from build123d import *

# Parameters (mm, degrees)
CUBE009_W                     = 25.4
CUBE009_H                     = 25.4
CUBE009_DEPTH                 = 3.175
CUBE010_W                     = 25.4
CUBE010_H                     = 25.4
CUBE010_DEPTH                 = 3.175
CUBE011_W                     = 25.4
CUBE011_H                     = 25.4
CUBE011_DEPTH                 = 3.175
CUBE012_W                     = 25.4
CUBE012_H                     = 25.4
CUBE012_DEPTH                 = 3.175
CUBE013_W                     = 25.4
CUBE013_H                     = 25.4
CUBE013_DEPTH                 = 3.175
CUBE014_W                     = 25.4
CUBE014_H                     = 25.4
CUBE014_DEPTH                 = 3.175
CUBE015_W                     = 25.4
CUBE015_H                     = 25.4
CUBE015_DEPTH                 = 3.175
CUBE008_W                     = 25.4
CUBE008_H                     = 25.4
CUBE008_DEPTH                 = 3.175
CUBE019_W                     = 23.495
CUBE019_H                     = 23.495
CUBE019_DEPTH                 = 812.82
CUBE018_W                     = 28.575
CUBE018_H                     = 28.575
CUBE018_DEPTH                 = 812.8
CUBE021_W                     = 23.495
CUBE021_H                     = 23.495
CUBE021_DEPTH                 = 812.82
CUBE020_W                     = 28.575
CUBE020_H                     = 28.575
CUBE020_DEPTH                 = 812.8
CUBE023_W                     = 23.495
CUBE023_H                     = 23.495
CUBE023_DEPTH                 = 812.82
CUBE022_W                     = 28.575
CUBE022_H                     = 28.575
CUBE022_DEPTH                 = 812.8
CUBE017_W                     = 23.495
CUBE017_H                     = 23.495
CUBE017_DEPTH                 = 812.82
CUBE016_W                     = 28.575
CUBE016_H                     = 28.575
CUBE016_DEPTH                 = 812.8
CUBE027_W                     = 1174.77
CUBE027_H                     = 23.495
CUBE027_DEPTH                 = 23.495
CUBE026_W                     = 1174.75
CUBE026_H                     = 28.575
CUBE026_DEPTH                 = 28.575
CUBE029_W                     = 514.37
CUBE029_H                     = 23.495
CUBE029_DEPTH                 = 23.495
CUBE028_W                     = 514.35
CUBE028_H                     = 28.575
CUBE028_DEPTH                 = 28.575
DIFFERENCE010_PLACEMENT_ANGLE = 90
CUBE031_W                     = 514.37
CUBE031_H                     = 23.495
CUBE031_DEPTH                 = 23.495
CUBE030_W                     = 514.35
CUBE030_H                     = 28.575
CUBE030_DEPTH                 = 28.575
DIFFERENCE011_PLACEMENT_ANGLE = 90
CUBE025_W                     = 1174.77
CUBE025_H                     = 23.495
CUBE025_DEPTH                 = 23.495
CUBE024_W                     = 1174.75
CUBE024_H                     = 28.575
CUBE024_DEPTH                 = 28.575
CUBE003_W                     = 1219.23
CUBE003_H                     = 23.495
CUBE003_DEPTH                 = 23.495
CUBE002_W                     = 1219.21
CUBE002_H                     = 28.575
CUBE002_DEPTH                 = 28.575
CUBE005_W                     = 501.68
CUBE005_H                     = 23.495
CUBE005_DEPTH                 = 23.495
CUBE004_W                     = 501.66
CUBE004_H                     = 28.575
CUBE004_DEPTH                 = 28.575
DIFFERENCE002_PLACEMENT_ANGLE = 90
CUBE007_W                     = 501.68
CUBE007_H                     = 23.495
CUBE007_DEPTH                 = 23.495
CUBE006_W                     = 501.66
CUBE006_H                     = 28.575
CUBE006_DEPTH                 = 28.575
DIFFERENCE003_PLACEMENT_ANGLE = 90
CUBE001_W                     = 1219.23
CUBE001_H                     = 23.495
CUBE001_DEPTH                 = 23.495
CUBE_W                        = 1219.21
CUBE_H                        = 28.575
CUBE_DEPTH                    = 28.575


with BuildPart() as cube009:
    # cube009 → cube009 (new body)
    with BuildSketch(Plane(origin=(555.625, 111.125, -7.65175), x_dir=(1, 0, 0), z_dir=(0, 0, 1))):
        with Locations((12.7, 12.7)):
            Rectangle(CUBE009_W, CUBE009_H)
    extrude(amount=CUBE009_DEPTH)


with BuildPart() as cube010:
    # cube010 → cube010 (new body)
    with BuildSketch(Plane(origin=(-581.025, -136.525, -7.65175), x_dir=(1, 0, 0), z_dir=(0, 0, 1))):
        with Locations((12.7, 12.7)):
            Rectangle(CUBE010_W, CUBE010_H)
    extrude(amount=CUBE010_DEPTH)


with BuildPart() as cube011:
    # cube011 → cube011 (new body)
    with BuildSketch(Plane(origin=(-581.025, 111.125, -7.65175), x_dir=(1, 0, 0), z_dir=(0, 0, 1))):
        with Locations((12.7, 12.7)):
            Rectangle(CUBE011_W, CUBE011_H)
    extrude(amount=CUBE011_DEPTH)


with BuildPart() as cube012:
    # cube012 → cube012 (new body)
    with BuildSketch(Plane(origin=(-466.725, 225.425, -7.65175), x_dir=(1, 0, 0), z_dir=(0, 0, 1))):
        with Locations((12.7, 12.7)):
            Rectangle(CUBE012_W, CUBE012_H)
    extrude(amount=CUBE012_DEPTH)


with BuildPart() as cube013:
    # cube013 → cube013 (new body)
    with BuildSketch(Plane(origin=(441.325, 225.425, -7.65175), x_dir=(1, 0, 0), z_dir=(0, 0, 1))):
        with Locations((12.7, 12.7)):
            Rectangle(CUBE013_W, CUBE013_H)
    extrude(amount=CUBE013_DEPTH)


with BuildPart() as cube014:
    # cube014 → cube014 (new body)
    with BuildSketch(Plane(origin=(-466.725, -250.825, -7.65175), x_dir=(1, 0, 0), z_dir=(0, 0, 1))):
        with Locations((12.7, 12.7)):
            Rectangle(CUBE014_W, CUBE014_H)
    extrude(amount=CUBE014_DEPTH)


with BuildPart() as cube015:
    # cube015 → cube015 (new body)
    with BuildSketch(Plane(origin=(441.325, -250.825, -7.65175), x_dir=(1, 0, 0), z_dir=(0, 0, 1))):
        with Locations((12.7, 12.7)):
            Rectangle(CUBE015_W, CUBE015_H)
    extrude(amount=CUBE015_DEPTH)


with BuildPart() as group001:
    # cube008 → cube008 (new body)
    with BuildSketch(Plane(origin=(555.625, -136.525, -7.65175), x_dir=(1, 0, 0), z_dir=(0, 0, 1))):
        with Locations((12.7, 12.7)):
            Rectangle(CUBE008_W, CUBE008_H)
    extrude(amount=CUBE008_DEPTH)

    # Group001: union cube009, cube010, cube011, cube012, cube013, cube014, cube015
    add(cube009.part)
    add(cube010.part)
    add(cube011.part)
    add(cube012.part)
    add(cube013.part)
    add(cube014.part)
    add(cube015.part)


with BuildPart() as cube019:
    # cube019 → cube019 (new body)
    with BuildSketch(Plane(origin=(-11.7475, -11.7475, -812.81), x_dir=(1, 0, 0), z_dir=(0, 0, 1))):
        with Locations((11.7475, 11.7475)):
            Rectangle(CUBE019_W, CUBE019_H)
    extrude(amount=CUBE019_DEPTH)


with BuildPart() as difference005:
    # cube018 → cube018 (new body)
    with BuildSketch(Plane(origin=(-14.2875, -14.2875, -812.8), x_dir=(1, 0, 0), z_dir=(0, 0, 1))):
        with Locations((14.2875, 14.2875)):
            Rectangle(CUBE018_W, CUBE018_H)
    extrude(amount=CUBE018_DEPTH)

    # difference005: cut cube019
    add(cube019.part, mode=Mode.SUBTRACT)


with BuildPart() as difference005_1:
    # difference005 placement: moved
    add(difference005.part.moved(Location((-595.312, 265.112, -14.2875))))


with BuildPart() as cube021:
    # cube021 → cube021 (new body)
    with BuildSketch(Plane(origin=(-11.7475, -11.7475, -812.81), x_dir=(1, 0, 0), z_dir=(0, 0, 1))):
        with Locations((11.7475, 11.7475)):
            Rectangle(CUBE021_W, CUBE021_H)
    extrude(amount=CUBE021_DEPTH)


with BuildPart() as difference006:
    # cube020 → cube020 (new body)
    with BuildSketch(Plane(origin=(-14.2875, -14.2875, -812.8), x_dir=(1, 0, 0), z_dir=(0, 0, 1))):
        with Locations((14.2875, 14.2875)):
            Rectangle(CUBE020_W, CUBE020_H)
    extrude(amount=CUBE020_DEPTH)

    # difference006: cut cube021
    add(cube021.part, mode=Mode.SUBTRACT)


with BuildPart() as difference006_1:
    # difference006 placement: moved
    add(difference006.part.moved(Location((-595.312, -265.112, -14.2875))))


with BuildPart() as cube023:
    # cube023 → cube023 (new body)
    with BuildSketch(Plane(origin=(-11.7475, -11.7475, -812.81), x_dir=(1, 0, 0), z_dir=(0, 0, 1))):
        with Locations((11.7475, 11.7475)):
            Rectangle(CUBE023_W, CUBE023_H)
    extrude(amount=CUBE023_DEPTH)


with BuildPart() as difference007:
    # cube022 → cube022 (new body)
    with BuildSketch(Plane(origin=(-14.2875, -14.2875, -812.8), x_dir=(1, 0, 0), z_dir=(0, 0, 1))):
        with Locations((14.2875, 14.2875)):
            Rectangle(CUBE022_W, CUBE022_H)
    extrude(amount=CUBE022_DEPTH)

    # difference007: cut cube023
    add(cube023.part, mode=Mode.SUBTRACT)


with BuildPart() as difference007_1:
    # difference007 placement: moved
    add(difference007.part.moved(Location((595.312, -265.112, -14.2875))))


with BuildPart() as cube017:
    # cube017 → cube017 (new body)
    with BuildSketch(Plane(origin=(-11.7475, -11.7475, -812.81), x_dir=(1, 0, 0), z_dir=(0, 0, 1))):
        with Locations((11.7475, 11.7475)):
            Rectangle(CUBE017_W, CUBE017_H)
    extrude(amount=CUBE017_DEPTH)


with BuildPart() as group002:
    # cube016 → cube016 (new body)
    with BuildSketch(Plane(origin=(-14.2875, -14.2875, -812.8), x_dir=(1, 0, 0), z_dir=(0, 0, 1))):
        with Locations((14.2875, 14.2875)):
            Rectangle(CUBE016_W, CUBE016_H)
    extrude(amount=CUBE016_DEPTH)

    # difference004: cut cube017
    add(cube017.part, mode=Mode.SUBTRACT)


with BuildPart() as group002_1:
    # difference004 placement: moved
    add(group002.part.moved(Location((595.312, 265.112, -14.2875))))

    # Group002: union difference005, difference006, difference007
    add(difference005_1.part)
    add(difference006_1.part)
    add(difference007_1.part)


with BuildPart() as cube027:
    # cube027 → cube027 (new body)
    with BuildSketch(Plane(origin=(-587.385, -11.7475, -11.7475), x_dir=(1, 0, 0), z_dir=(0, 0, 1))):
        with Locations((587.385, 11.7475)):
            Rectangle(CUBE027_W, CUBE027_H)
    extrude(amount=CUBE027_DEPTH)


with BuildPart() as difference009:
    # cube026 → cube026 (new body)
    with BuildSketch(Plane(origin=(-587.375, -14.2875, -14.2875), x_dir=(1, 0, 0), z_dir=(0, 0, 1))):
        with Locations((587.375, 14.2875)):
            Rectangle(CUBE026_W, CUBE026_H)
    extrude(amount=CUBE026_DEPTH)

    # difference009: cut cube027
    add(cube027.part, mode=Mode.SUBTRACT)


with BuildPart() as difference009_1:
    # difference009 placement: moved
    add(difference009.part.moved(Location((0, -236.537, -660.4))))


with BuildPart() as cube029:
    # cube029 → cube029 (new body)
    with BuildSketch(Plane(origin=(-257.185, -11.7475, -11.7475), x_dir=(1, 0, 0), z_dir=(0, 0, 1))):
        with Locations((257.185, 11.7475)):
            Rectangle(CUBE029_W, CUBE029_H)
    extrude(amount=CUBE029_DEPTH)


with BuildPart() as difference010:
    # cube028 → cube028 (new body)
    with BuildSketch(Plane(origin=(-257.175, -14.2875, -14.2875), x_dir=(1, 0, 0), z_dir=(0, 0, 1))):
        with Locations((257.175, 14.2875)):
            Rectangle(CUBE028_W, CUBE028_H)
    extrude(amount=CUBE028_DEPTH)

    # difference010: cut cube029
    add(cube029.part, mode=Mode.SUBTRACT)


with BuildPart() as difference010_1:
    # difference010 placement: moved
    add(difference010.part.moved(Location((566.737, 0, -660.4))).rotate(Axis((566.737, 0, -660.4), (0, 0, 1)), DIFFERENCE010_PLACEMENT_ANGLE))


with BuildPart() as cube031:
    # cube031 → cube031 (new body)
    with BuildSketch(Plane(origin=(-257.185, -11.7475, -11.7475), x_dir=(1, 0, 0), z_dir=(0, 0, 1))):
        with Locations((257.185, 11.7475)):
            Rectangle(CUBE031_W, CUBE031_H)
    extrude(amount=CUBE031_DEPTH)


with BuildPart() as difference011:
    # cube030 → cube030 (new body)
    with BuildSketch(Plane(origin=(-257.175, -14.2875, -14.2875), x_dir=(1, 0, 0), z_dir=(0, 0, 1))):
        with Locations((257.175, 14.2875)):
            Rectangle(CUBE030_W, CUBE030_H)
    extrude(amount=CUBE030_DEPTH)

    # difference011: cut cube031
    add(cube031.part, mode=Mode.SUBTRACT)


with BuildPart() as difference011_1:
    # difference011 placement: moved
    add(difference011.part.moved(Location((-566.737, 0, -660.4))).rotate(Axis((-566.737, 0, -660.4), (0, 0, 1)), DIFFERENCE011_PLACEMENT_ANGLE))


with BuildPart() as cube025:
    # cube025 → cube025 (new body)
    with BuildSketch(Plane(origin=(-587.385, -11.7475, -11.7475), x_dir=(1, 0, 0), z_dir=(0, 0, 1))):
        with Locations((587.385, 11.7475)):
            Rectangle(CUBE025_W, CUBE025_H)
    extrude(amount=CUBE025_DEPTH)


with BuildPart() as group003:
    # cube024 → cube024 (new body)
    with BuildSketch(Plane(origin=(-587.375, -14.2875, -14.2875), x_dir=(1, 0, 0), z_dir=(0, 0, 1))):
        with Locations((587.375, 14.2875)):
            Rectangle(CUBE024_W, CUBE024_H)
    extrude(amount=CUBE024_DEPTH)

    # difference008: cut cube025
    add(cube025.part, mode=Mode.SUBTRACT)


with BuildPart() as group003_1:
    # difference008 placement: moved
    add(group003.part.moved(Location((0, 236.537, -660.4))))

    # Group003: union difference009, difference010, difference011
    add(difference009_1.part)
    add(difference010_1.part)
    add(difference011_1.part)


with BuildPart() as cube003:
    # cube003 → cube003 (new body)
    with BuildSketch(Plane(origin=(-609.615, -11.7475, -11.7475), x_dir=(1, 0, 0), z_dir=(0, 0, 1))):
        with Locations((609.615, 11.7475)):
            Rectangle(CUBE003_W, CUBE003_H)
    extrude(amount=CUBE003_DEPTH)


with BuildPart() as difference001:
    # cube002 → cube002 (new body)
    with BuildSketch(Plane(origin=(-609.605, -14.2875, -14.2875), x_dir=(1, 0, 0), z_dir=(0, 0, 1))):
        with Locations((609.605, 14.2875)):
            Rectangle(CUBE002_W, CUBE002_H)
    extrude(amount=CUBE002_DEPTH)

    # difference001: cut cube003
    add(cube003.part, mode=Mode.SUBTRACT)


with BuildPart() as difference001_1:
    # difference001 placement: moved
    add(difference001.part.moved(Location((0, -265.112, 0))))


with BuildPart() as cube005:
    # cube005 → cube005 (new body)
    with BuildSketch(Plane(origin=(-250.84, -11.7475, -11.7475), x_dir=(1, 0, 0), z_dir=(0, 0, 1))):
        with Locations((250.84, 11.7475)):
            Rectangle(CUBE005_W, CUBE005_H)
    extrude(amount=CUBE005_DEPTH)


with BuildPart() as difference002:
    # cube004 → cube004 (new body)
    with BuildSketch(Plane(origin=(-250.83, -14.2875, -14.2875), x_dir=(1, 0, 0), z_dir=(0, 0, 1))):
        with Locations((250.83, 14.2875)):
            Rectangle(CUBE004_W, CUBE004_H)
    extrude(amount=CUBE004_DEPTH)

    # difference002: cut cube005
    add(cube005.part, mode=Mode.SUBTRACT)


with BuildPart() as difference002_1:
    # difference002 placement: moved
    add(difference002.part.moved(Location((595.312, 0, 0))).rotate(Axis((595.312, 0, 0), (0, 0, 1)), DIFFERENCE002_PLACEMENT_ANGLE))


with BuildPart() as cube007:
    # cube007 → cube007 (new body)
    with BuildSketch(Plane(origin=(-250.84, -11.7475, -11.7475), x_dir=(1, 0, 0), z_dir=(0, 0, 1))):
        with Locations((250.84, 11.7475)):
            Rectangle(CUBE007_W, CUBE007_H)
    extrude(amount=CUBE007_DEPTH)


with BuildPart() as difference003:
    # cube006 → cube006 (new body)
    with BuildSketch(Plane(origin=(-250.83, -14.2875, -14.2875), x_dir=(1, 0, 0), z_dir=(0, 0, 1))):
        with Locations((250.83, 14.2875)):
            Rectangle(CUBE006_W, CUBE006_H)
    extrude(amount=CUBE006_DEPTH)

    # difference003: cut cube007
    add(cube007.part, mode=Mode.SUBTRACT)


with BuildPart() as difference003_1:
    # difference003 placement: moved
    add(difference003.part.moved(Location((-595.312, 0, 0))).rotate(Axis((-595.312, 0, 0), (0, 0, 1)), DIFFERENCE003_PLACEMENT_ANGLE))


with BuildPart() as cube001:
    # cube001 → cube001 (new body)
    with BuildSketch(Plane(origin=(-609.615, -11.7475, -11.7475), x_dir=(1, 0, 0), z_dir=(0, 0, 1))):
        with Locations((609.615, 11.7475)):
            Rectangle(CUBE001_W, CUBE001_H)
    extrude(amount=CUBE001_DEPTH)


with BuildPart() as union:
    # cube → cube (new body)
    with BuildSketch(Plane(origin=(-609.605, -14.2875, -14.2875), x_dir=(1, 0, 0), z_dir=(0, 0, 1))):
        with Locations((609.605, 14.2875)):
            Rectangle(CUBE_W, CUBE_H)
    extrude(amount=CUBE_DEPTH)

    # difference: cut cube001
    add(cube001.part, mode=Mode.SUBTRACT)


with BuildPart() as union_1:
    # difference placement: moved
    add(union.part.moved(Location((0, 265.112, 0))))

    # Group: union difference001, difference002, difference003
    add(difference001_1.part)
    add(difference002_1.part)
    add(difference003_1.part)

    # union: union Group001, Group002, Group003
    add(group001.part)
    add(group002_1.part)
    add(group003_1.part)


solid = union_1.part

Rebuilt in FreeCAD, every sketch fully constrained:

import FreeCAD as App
import Part
import Sketcher
Q = App.Units.Quantity


def add_polygon(sketch, points):
    """Adds a closed chain of lines whose ends are joined by coincident constraints."""
    first, n = sketch.GeometryCount, len(points)
    for a, b in zip(points, points[1:] + points[:1]):
        sketch.addGeometry(Part.LineSegment(App.Vector(*a, 0), App.Vector(*b, 0)), False)
    for i in range(n):
        sketch.addConstraint(Sketcher.Constraint("Coincident", first + i, 2, first + (i + 1) % n, 1))

doc = App.newDocument("Part")
body = doc.addObject("PartDesign::Body", "Body")

sketch1 = body.newObject("Sketcher::SketchObject", "Sketch")
sketch1.AttachmentSupport = (doc.getObject("XY_Plane"), [""])
sketch1.MapMode = "FlatFace"
sketch1.AttachmentOffset = App.Placement(App.Vector(0, 0, -7.65175), App.Rotation())
add_polygon(sketch1, [(556, 137), (556, 111), (581, 111), (581, 137)])
sketch1.addConstraint([
    Sketcher.Constraint("Vertical", 0),
    Sketcher.Constraint("Horizontal", 1),
    Sketcher.Constraint("Vertical", 2),
    Sketcher.Constraint("Horizontal", 3),
    Sketcher.Constraint("Equal", 3, 0),
    Sketcher.Constraint("DistanceX", 1, 1, 1, 2, Q("1 in")),
    Sketcher.Constraint("DistanceX", -1, 1, 0, 2, Q("21.875 in")),
    Sketcher.Constraint("DistanceY", -1, 1, 0, 2, Q("4.375 in")),
])
pad1 = body.newObject("PartDesign::Pad", "Pad")
pad1.Profile = sketch1
pad1.Length = Q("0.125 in")
body2 = doc.addObject("PartDesign::Body", "Body001")

sketch2 = body2.newObject("Sketcher::SketchObject", "Sketch001")
sketch2.AttachmentSupport = (doc.getObject("XY_Plane001"), [""])
sketch2.MapMode = "FlatFace"
sketch2.AttachmentOffset = App.Placement(App.Vector(0, 0, -7.65175), App.Rotation())
add_polygon(sketch2, [(-581, -111), (-581, -137), (-556, -137), (-556, -111)])
sketch2.addConstraint([
    Sketcher.Constraint("Vertical", 0),
    Sketcher.Constraint("Horizontal", 1),
    Sketcher.Constraint("Vertical", 2),
    Sketcher.Constraint("Horizontal", 3),
    Sketcher.Constraint("Equal", 3, 0),
    Sketcher.Constraint("DistanceX", 1, 1, 1, 2, Q("1 in")),
    Sketcher.Constraint("DistanceX", 0, 2, -1, 1, Q("22.875 in")),
    Sketcher.Constraint("DistanceY", 0, 2, -1, 1, Q("5.375 in")),
])
pad2 = body2.newObject("PartDesign::Pad", "Pad001")
pad2.Profile = sketch2
pad2.Length = Q("0.125 in")
body3 = doc.addObject("PartDesign::Body", "Body002")

sketch3 = body3.newObject("Sketcher::SketchObject", "Sketch002")
sketch3.AttachmentSupport = (doc.getObject("XY_Plane002"), [""])
sketch3.MapMode = "FlatFace"
sketch3.AttachmentOffset = App.Placement(App.Vector(0, 0, -7.65175), App.Rotation())
add_polygon(sketch3, [(-581, 137), (-581, 111), (-556, 111), (-556, 137)])
sketch3.addConstraint([
    Sketcher.Constraint("Vertical", 0),
    Sketcher.Constraint("Horizontal", 1),
    Sketcher.Constraint("Vertical", 2),
    Sketcher.Constraint("Horizontal", 3),
    Sketcher.Constraint("Equal", 3, 0),
    Sketcher.Constraint("DistanceX", 1, 1, 1, 2, Q("1 in")),
    Sketcher.Constraint("DistanceX", 0, 2, -1, 1, Q("22.875 in")),
    Sketcher.Constraint("DistanceY", -1, 1, 0, 2, Q("4.375 in")),
])
pad3 = body3.newObject("PartDesign::Pad", "Pad002")
pad3.Profile = sketch3
pad3.Length = Q("0.125 in")
body4 = doc.addObject("PartDesign::Body", "Body003")

sketch4 = body4.newObject("Sketcher::SketchObject", "Sketch003")
sketch4.AttachmentSupport = (doc.getObject("XY_Plane003"), [""])
sketch4.MapMode = "FlatFace"
sketch4.AttachmentOffset = App.Placement(App.Vector(0, 0, -7.65175), App.Rotation())
add_polygon(sketch4, [(-467, 251), (-467, 225), (-441, 225), (-441, 251)])
sketch4.addConstraint([
    Sketcher.Constraint("Vertical", 0),
    Sketcher.Constraint("Horizontal", 1),
    Sketcher.Constraint("Vertical", 2),
    Sketcher.Constraint("Horizontal", 3),
    Sketcher.Constraint("Equal", 3, 0),
    Sketcher.Constraint("DistanceX", 1, 1, 1, 2, Q("1 in")),
    Sketcher.Constraint("DistanceX", 0, 2, -1, 1, Q("18.375 in")),
    Sketcher.Constraint("DistanceY", -1, 1, 0, 2, Q("8.875 in")),
])
pad4 = body4.newObject("PartDesign::Pad", "Pad003")
pad4.Profile = sketch4
pad4.Length = Q("0.125 in")
body5 = doc.addObject("PartDesign::Body", "Body004")

sketch5 = body5.newObject("Sketcher::SketchObject", "Sketch004")
sketch5.AttachmentSupport = (doc.getObject("XY_Plane004"), [""])
sketch5.MapMode = "FlatFace"
sketch5.AttachmentOffset = App.Placement(App.Vector(0, 0, -7.65175), App.Rotation())
add_polygon(sketch5, [(441, 251), (441, 225), (467, 225), (467, 251)])
sketch5.addConstraint([
    Sketcher.Constraint("Vertical", 0),
    Sketcher.Constraint("Horizontal", 1),
    Sketcher.Constraint("Vertical", 2),
    Sketcher.Constraint("Horizontal", 3),
    Sketcher.Constraint("Equal", 3, 0),
    Sketcher.Constraint("DistanceX", 1, 1, 1, 2, Q("1 in")),
    Sketcher.Constraint("DistanceX", -1, 1, 0, 2, Q("17.375 in")),
    Sketcher.Constraint("DistanceY", -1, 1, 0, 2, Q("8.875 in")),
])
pad5 = body5.newObject("PartDesign::Pad", "Pad004")
pad5.Profile = sketch5
pad5.Length = Q("0.125 in")
body6 = doc.addObject("PartDesign::Body", "Body005")

sketch6 = body6.newObject("Sketcher::SketchObject", "Sketch005")
sketch6.AttachmentSupport = (doc.getObject("XY_Plane005"), [""])
sketch6.MapMode = "FlatFace"
sketch6.AttachmentOffset = App.Placement(App.Vector(0, 0, -7.65175), App.Rotation())
add_polygon(sketch6, [(-467, -225), (-467, -251), (-441, -251), (-441, -225)])
sketch6.addConstraint([
    Sketcher.Constraint("Vertical", 0),
    Sketcher.Constraint("Horizontal", 1),
    Sketcher.Constraint("Vertical", 2),
    Sketcher.Constraint("Horizontal", 3),
    Sketcher.Constraint("Equal", 3, 0),
    Sketcher.Constraint("DistanceX", 1, 1, 1, 2, Q("1 in")),
    Sketcher.Constraint("DistanceX", 0, 2, -1, 1, Q("18.375 in")),
    Sketcher.Constraint("DistanceY", 0, 2, -1, 1, Q("9.875 in")),
])
pad6 = body6.newObject("PartDesign::Pad", "Pad005")
pad6.Profile = sketch6
pad6.Length = Q("0.125 in")
body7 = doc.addObject("PartDesign::Body", "Body006")

sketch7 = body7.newObject("Sketcher::SketchObject", "Sketch006")
sketch7.AttachmentSupport = (doc.getObject("XY_Plane006"), [""])
sketch7.MapMode = "FlatFace"
sketch7.AttachmentOffset = App.Placement(App.Vector(0, 0, -7.65175), App.Rotation())
add_polygon(sketch7, [(441, -225), (441, -251), (467, -251), (467, -225)])
sketch7.addConstraint([
    Sketcher.Constraint("Vertical", 0),
    Sketcher.Constraint("Horizontal", 1),
    Sketcher.Constraint("Vertical", 2),
    Sketcher.Constraint("Horizontal", 3),
    Sketcher.Constraint("Equal", 3, 0),
    Sketcher.Constraint("DistanceX", 1, 1, 1, 2, Q("1 in")),
    Sketcher.Constraint("DistanceX", -1, 1, 0, 2, Q("17.375 in")),
    Sketcher.Constraint("DistanceY", 0, 2, -1, 1, Q("9.875 in")),
])
pad7 = body7.newObject("PartDesign::Pad", "Pad006")
pad7.Profile = sketch7
pad7.Length = Q("0.125 in")
body8 = doc.addObject("PartDesign::Body", "Body007")
body8.AllowCompound = True

sketch8 = body8.newObject("Sketcher::SketchObject", "Sketch007")
sketch8.AttachmentSupport = (doc.getObject("XY_Plane007"), [""])
sketch8.MapMode = "FlatFace"
sketch8.AttachmentOffset = App.Placement(App.Vector(0, 0, -7.65175), App.Rotation())
add_polygon(sketch8, [(556, -111), (556, -137), (581, -137), (581, -111)])
sketch8.addConstraint([
    Sketcher.Constraint("Vertical", 0),
    Sketcher.Constraint("Horizontal", 1),
    Sketcher.Constraint("Vertical", 2),
    Sketcher.Constraint("Horizontal", 3),
    Sketcher.Constraint("Equal", 3, 0),
    Sketcher.Constraint("DistanceX", 1, 1, 1, 2, Q("1 in")),
    Sketcher.Constraint("DistanceX", -1, 1, 0, 2, Q("21.875 in")),
    Sketcher.Constraint("DistanceY", 0, 2, -1, 1, Q("5.375 in")),
])
pad8 = body8.newObject("PartDesign::Pad", "Pad007")
pad8.Profile = sketch8
pad8.Length = Q("0.125 in")
doc.recompute()

boolean = body8.newObject("PartDesign::Boolean", "Boolean")
boolean.Type = "Fuse"
boolean.addObjects([body])
doc.recompute()

boolean2 = body8.newObject("PartDesign::Boolean", "Boolean001")
boolean2.Type = "Fuse"
boolean2.addObjects([body2])
doc.recompute()

boolean3 = body8.newObject("PartDesign::Boolean", "Boolean002")
boolean3.Type = "Fuse"
boolean3.addObjects([body3])
doc.recompute()

boolean4 = body8.newObject("PartDesign::Boolean", "Boolean003")
boolean4.Type = "Fuse"
boolean4.addObjects([body4])
doc.recompute()

boolean5 = body8.newObject("PartDesign::Boolean", "Boolean004")
boolean5.Type = "Fuse"
boolean5.addObjects([body5])
doc.recompute()

boolean6 = body8.newObject("PartDesign::Boolean", "Boolean005")
boolean6.Type = "Fuse"
boolean6.addObjects([body6])
doc.recompute()

boolean7 = body8.newObject("PartDesign::Boolean", "Boolean006")
boolean7.Type = "Fuse"
boolean7.addObjects([body7])
body9 = doc.addObject("PartDesign::Body", "Body008")

sketch9 = body9.newObject("Sketcher::SketchObject", "Sketch008")
sketch9.AttachmentSupport = (doc.getObject("XY_Plane008"), [""])
sketch9.MapMode = "FlatFace"
sketch9.AttachmentOffset = App.Placement(App.Vector(0, 0, -812.81), App.Rotation())
add_polygon(sketch9, [(-12, 12), (-12, -12), (12, -12), (12, 12)])
sketch9.addConstraint([
    Sketcher.Constraint("Vertical", 0),
    Sketcher.Constraint("Horizontal", 1),
    Sketcher.Constraint("Vertical", 2),
    Sketcher.Constraint("Horizontal", 3),
    Sketcher.Constraint("Symmetric", 0, 2, 2, 2, -1, 1),
    Sketcher.Constraint("Equal", 3, 0),
    Sketcher.Constraint("DistanceX", 1, 1, 1, 2, Q("0.925 in")),
])
pad9 = body9.newObject("PartDesign::Pad", "Pad008")
pad9.Profile = sketch9
pad9.Length = 812.82
body10 = doc.addObject("PartDesign::Body", "Body009")

sketch10 = body10.newObject("Sketcher::SketchObject", "Sketch009")
sketch10.AttachmentSupport = (doc.getObject("XY_Plane009"), [""])
sketch10.MapMode = "FlatFace"
sketch10.AttachmentOffset = App.Placement(App.Vector(0, 0, -32 * 25.4), App.Rotation())
add_polygon(sketch10, [(-14, 14), (-14, -14), (14, -14), (14, 14)])
sketch10.addConstraint([
    Sketcher.Constraint("Vertical", 0),
    Sketcher.Constraint("Horizontal", 1),
    Sketcher.Constraint("Vertical", 2),
    Sketcher.Constraint("Horizontal", 3),
    Sketcher.Constraint("Symmetric", 0, 2, 2, 2, -1, 1),
    Sketcher.Constraint("Equal", 3, 0),
    Sketcher.Constraint("DistanceX", 1, 1, 1, 2, Q("1.125 in")),
])
pad10 = body10.newObject("PartDesign::Pad", "Pad009")
pad10.Profile = sketch10
pad10.Length = Q("32 in")
doc.recompute()

boolean8 = body10.newObject("PartDesign::Boolean", "Boolean007")
boolean8.Type = "Cut"
boolean8.addObjects([body9])
body11 = doc.addObject("PartDesign::Body", "Body010")
doc.recompute()

body10.Placement = App.Placement(App.Vector(-595.312, 265.112, -14.2875), App.Rotation(App.Vector(0, 0, 1), 0))
boolean9 = body11.newObject("PartDesign::Boolean", "Boolean008")
boolean9.Type = "Fuse"
boolean9.addObjects([body10])
body12 = doc.addObject("PartDesign::Body", "Body011")

sketch11 = body12.newObject("Sketcher::SketchObject", "Sketch010")
sketch11.AttachmentSupport = (doc.getObject("XY_Plane011"), [""])
sketch11.MapMode = "FlatFace"
sketch11.AttachmentOffset = App.Placement(App.Vector(0, 0, -812.81), App.Rotation())
add_polygon(sketch11, [(-12, 12), (-12, -12), (12, -12), (12, 12)])
sketch11.addConstraint([
    Sketcher.Constraint("Vertical", 0),
    Sketcher.Constraint("Horizontal", 1),
    Sketcher.Constraint("Vertical", 2),
    Sketcher.Constraint("Horizontal", 3),
    Sketcher.Constraint("Symmetric", 0, 2, 2, 2, -1, 1),
    Sketcher.Constraint("Equal", 3, 0),
    Sketcher.Constraint("DistanceX", 1, 1, 1, 2, Q("0.925 in")),
])
pad11 = body12.newObject("PartDesign::Pad", "Pad010")
pad11.Profile = sketch11
pad11.Length = 812.82
body13 = doc.addObject("PartDesign::Body", "Body012")

sketch12 = body13.newObject("Sketcher::SketchObject", "Sketch011")
sketch12.AttachmentSupport = (doc.getObject("XY_Plane012"), [""])
sketch12.MapMode = "FlatFace"
sketch12.AttachmentOffset = App.Placement(App.Vector(0, 0, -32 * 25.4), App.Rotation())
add_polygon(sketch12, [(-14, 14), (-14, -14), (14, -14), (14, 14)])
sketch12.addConstraint([
    Sketcher.Constraint("Vertical", 0),
    Sketcher.Constraint("Horizontal", 1),
    Sketcher.Constraint("Vertical", 2),
    Sketcher.Constraint("Horizontal", 3),
    Sketcher.Constraint("Symmetric", 0, 2, 2, 2, -1, 1),
    Sketcher.Constraint("Equal", 3, 0),
    Sketcher.Constraint("DistanceX", 1, 1, 1, 2, Q("1.125 in")),
])
pad12 = body13.newObject("PartDesign::Pad", "Pad011")
pad12.Profile = sketch12
pad12.Length = Q("32 in")
doc.recompute()

boolean10 = body13.newObject("PartDesign::Boolean", "Boolean009")
boolean10.Type = "Cut"
boolean10.addObjects([body12])
body14 = doc.addObject("PartDesign::Body", "Body013")
doc.recompute()

body13.Placement = App.Placement(App.Vector(-595.312, -265.112, -14.2875), App.Rotation(App.Vector(0, 0, 1), 0))
boolean11 = body14.newObject("PartDesign::Boolean", "Boolean010")
boolean11.Type = "Fuse"
boolean11.addObjects([body13])
body15 = doc.addObject("PartDesign::Body", "Body014")

sketch13 = body15.newObject("Sketcher::SketchObject", "Sketch012")
sketch13.AttachmentSupport = (doc.getObject("XY_Plane014"), [""])
sketch13.MapMode = "FlatFace"
sketch13.AttachmentOffset = App.Placement(App.Vector(0, 0, -812.81), App.Rotation())
add_polygon(sketch13, [(-12, 12), (-12, -12), (12, -12), (12, 12)])
sketch13.addConstraint([
    Sketcher.Constraint("Vertical", 0),
    Sketcher.Constraint("Horizontal", 1),
    Sketcher.Constraint("Vertical", 2),
    Sketcher.Constraint("Horizontal", 3),
    Sketcher.Constraint("Symmetric", 0, 2, 2, 2, -1, 1),
    Sketcher.Constraint("Equal", 3, 0),
    Sketcher.Constraint("DistanceX", 1, 1, 1, 2, Q("0.925 in")),
])
pad13 = body15.newObject("PartDesign::Pad", "Pad012")
pad13.Profile = sketch13
pad13.Length = 812.82
body16 = doc.addObject("PartDesign::Body", "Body015")

sketch14 = body16.newObject("Sketcher::SketchObject", "Sketch013")
sketch14.AttachmentSupport = (doc.getObject("XY_Plane015"), [""])
sketch14.MapMode = "FlatFace"
sketch14.AttachmentOffset = App.Placement(App.Vector(0, 0, -32 * 25.4), App.Rotation())
add_polygon(sketch14, [(-14, 14), (-14, -14), (14, -14), (14, 14)])
sketch14.addConstraint([
    Sketcher.Constraint("Vertical", 0),
    Sketcher.Constraint("Horizontal", 1),
    Sketcher.Constraint("Vertical", 2),
    Sketcher.Constraint("Horizontal", 3),
    Sketcher.Constraint("Symmetric", 0, 2, 2, 2, -1, 1),
    Sketcher.Constraint("Equal", 3, 0),
    Sketcher.Constraint("DistanceX", 1, 1, 1, 2, Q("1.125 in")),
])
pad14 = body16.newObject("PartDesign::Pad", "Pad013")
pad14.Profile = sketch14
pad14.Length = Q("32 in")
doc.recompute()

boolean12 = body16.newObject("PartDesign::Boolean", "Boolean011")
boolean12.Type = "Cut"
boolean12.addObjects([body15])
body17 = doc.addObject("PartDesign::Body", "Body016")
doc.recompute()

body16.Placement = App.Placement(App.Vector(595.312, -265.112, -14.2875), App.Rotation(App.Vector(0, 0, 1), 0))
boolean13 = body17.newObject("PartDesign::Boolean", "Boolean012")
boolean13.Type = "Fuse"
boolean13.addObjects([body16])
body18 = doc.addObject("PartDesign::Body", "Body017")

sketch15 = body18.newObject("Sketcher::SketchObject", "Sketch014")
sketch15.AttachmentSupport = (doc.getObject("XY_Plane017"), [""])
sketch15.MapMode = "FlatFace"
sketch15.AttachmentOffset = App.Placement(App.Vector(0, 0, -812.81), App.Rotation())
add_polygon(sketch15, [(-12, 12), (-12, -12), (12, -12), (12, 12)])
sketch15.addConstraint([
    Sketcher.Constraint("Vertical", 0),
    Sketcher.Constraint("Horizontal", 1),
    Sketcher.Constraint("Vertical", 2),
    Sketcher.Constraint("Horizontal", 3),
    Sketcher.Constraint("Symmetric", 0, 2, 2, 2, -1, 1),
    Sketcher.Constraint("Equal", 3, 0),
    Sketcher.Constraint("DistanceX", 1, 1, 1, 2, Q("0.925 in")),
])
pad15 = body18.newObject("PartDesign::Pad", "Pad014")
pad15.Profile = sketch15
pad15.Length = 812.82
body19 = doc.addObject("PartDesign::Body", "Body018")

sketch16 = body19.newObject("Sketcher::SketchObject", "Sketch015")
sketch16.AttachmentSupport = (doc.getObject("XY_Plane018"), [""])
sketch16.MapMode = "FlatFace"
sketch16.AttachmentOffset = App.Placement(App.Vector(0, 0, -32 * 25.4), App.Rotation())
add_polygon(sketch16, [(-14, 14), (-14, -14), (14, -14), (14, 14)])
sketch16.addConstraint([
    Sketcher.Constraint("Vertical", 0),
    Sketcher.Constraint("Horizontal", 1),
    Sketcher.Constraint("Vertical", 2),
    Sketcher.Constraint("Horizontal", 3),
    Sketcher.Constraint("Symmetric", 0, 2, 2, 2, -1, 1),
    Sketcher.Constraint("Equal", 3, 0),
    Sketcher.Constraint("DistanceX", 1, 1, 1, 2, Q("1.125 in")),
])
pad16 = body19.newObject("PartDesign::Pad", "Pad015")
pad16.Profile = sketch16
pad16.Length = Q("32 in")
doc.recompute()

boolean14 = body19.newObject("PartDesign::Boolean", "Boolean013")
boolean14.Type = "Cut"
boolean14.addObjects([body18])
body20 = doc.addObject("PartDesign::Body", "Body019")
body20.AllowCompound = True
doc.recompute()

body19.Placement = App.Placement(App.Vector(595.312, 265.112, -14.2875), App.Rotation(App.Vector(0, 0, 1), 0))
boolean15 = body20.newObject("PartDesign::Boolean", "Boolean014")
boolean15.Type = "Fuse"
boolean15.addObjects([body19])
doc.recompute()

boolean16 = body20.newObject("PartDesign::Boolean", "Boolean015")
boolean16.Type = "Fuse"
boolean16.addObjects([body11])
doc.recompute()

boolean17 = body20.newObject("PartDesign::Boolean", "Boolean016")
boolean17.Type = "Fuse"
boolean17.addObjects([body14])
doc.recompute()

boolean18 = body20.newObject("PartDesign::Boolean", "Boolean017")
boolean18.Type = "Fuse"
boolean18.addObjects([body17])
body21 = doc.addObject("PartDesign::Body", "Body020")

sketch17 = body21.newObject("Sketcher::SketchObject", "Sketch016")
sketch17.AttachmentSupport = (doc.getObject("XY_Plane020"), [""])
sketch17.MapMode = "FlatFace"
sketch17.AttachmentOffset = App.Placement(App.Vector(0, 0, -0.4625 * 25.4), App.Rotation())
add_polygon(sketch17, [(-587, 12), (-587, -12), (587, -12), (587, 12)])
sketch17.addConstraint([
    Sketcher.Constraint("Vertical", 0),
    Sketcher.Constraint("Horizontal", 1),
    Sketcher.Constraint("Vertical", 2),
    Sketcher.Constraint("Horizontal", 3),
    Sketcher.Constraint("Symmetric", 0, 2, 2, 2, -1, 1),
    Sketcher.Constraint("DistanceY", 0, 2, 0, 1, Q("0.925 in")),
    Sketcher.Constraint("DistanceX", 1, 1, 1, 2, Q("1174.77 mm")),
])
pad17 = body21.newObject("PartDesign::Pad", "Pad016")
pad17.Profile = sketch17
pad17.Length = Q("0.925 in")
body22 = doc.addObject("PartDesign::Body", "Body021")

sketch18 = body22.newObject("Sketcher::SketchObject", "Sketch017")
sketch18.AttachmentSupport = (doc.getObject("XY_Plane021"), [""])
sketch18.MapMode = "FlatFace"
sketch18.AttachmentOffset = App.Placement(App.Vector(0, 0, -0.5625 * 25.4), App.Rotation())
add_polygon(sketch18, [(-587, 14), (-587, -14), (587, -14), (587, 14)])
sketch18.addConstraint([
    Sketcher.Constraint("Vertical", 0),
    Sketcher.Constraint("Horizontal", 1),
    Sketcher.Constraint("Vertical", 2),
    Sketcher.Constraint("Horizontal", 3),
    Sketcher.Constraint("Symmetric", 0, 2, 2, 2, -1, 1),
    Sketcher.Constraint("DistanceX", 1, 1, 1, 2, Q("46.25 in")),
    Sketcher.Constraint("DistanceY", 0, 2, 0, 1, Q("1.125 in")),
])
pad18 = body22.newObject("PartDesign::Pad", "Pad017")
pad18.Profile = sketch18
pad18.Length = Q("1.125 in")
doc.recompute()

boolean19 = body22.newObject("PartDesign::Boolean", "Boolean018")
boolean19.Type = "Cut"
boolean19.addObjects([body21])
body23 = doc.addObject("PartDesign::Body", "Body022")
doc.recompute()

body22.Placement = App.Placement(App.Vector(0, -236.537, -660.4), App.Rotation(App.Vector(0, 0, 1), 0))
boolean20 = body23.newObject("PartDesign::Boolean", "Boolean019")
boolean20.Type = "Fuse"
boolean20.addObjects([body22])
body24 = doc.addObject("PartDesign::Body", "Body023")

sketch19 = body24.newObject("Sketcher::SketchObject", "Sketch018")
sketch19.AttachmentSupport = (doc.getObject("XY_Plane023"), [""])
sketch19.MapMode = "FlatFace"
sketch19.AttachmentOffset = App.Placement(App.Vector(0, 0, -0.4625 * 25.4), App.Rotation())
add_polygon(sketch19, [(-257, 12), (-257, -12), (257, -12), (257, 12)])
sketch19.addConstraint([
    Sketcher.Constraint("Vertical", 0),
    Sketcher.Constraint("Horizontal", 1),
    Sketcher.Constraint("Vertical", 2),
    Sketcher.Constraint("Horizontal", 3),
    Sketcher.Constraint("Symmetric", 0, 2, 2, 2, -1, 1),
    Sketcher.Constraint("DistanceY", 0, 2, 0, 1, Q("0.925 in")),
    Sketcher.Constraint("DistanceX", 1, 1, 1, 2, Q("514.37 mm")),
])
pad19 = body24.newObject("PartDesign::Pad", "Pad018")
pad19.Profile = sketch19
pad19.Length = Q("0.925 in")
body25 = doc.addObject("PartDesign::Body", "Body024")

sketch20 = body25.newObject("Sketcher::SketchObject", "Sketch019")
sketch20.AttachmentSupport = (doc.getObject("XY_Plane024"), [""])
sketch20.MapMode = "FlatFace"
sketch20.AttachmentOffset = App.Placement(App.Vector(0, 0, -0.5625 * 25.4), App.Rotation())
add_polygon(sketch20, [(-257, 14), (-257, -14), (257, -14), (257, 14)])
sketch20.addConstraint([
    Sketcher.Constraint("Vertical", 0),
    Sketcher.Constraint("Horizontal", 1),
    Sketcher.Constraint("Vertical", 2),
    Sketcher.Constraint("Horizontal", 3),
    Sketcher.Constraint("Symmetric", 0, 2, 2, 2, -1, 1),
    Sketcher.Constraint("DistanceX", 1, 1, 1, 2, Q("20.25 in")),
    Sketcher.Constraint("DistanceY", 0, 2, 0, 1, Q("1.125 in")),
])
pad20 = body25.newObject("PartDesign::Pad", "Pad019")
pad20.Profile = sketch20
pad20.Length = Q("1.125 in")
doc.recompute()

boolean21 = body25.newObject("PartDesign::Boolean", "Boolean020")
boolean21.Type = "Cut"
boolean21.addObjects([body24])
body26 = doc.addObject("PartDesign::Body", "Body025")
doc.recompute()

body25.Placement = App.Placement(App.Vector(566.737, 0, -660.4), App.Rotation(App.Vector(0, 0, 1), 90))
boolean22 = body26.newObject("PartDesign::Boolean", "Boolean021")
boolean22.Type = "Fuse"
boolean22.addObjects([body25])
body27 = doc.addObject("PartDesign::Body", "Body026")

sketch21 = body27.newObject("Sketcher::SketchObject", "Sketch020")
sketch21.AttachmentSupport = (doc.getObject("XY_Plane026"), [""])
sketch21.MapMode = "FlatFace"
sketch21.AttachmentOffset = App.Placement(App.Vector(0, 0, -0.4625 * 25.4), App.Rotation())
add_polygon(sketch21, [(-257, 12), (-257, -12), (257, -12), (257, 12)])
sketch21.addConstraint([
    Sketcher.Constraint("Vertical", 0),
    Sketcher.Constraint("Horizontal", 1),
    Sketcher.Constraint("Vertical", 2),
    Sketcher.Constraint("Horizontal", 3),
    Sketcher.Constraint("Symmetric", 0, 2, 2, 2, -1, 1),
    Sketcher.Constraint("DistanceY", 0, 2, 0, 1, Q("0.925 in")),
    Sketcher.Constraint("DistanceX", 1, 1, 1, 2, Q("514.37 mm")),
])
pad21 = body27.newObject("PartDesign::Pad", "Pad020")
pad21.Profile = sketch21
pad21.Length = Q("0.925 in")
body28 = doc.addObject("PartDesign::Body", "Body027")

sketch22 = body28.newObject("Sketcher::SketchObject", "Sketch021")
sketch22.AttachmentSupport = (doc.getObject("XY_Plane027"), [""])
sketch22.MapMode = "FlatFace"
sketch22.AttachmentOffset = App.Placement(App.Vector(0, 0, -0.5625 * 25.4), App.Rotation())
add_polygon(sketch22, [(-257, 14), (-257, -14), (257, -14), (257, 14)])
sketch22.addConstraint([
    Sketcher.Constraint("Vertical", 0),
    Sketcher.Constraint("Horizontal", 1),
    Sketcher.Constraint("Vertical", 2),
    Sketcher.Constraint("Horizontal", 3),
    Sketcher.Constraint("Symmetric", 0, 2, 2, 2, -1, 1),
    Sketcher.Constraint("DistanceX", 1, 1, 1, 2, Q("20.25 in")),
    Sketcher.Constraint("DistanceY", 0, 2, 0, 1, Q("1.125 in")),
])
pad22 = body28.newObject("PartDesign::Pad", "Pad021")
pad22.Profile = sketch22
pad22.Length = Q("1.125 in")
doc.recompute()

boolean23 = body28.newObject("PartDesign::Boolean", "Boolean022")
boolean23.Type = "Cut"
boolean23.addObjects([body27])
body29 = doc.addObject("PartDesign::Body", "Body028")
doc.recompute()

body28.Placement = App.Placement(App.Vector(-566.737, 0, -660.4), App.Rotation(App.Vector(0, 0, 1), 90))
boolean24 = body29.newObject("PartDesign::Boolean", "Boolean023")
boolean24.Type = "Fuse"
boolean24.addObjects([body28])
body30 = doc.addObject("PartDesign::Body", "Body029")

sketch23 = body30.newObject("Sketcher::SketchObject", "Sketch022")
sketch23.AttachmentSupport = (doc.getObject("XY_Plane029"), [""])
sketch23.MapMode = "FlatFace"
sketch23.AttachmentOffset = App.Placement(App.Vector(0, 0, -0.4625 * 25.4), App.Rotation())
add_polygon(sketch23, [(-587, 12), (-587, -12), (587, -12), (587, 12)])
sketch23.addConstraint([
    Sketcher.Constraint("Vertical", 0),
    Sketcher.Constraint("Horizontal", 1),
    Sketcher.Constraint("Vertical", 2),
    Sketcher.Constraint("Horizontal", 3),
    Sketcher.Constraint("Symmetric", 0, 2, 2, 2, -1, 1),
    Sketcher.Constraint("DistanceY", 0, 2, 0, 1, Q("0.925 in")),
    Sketcher.Constraint("DistanceX", 1, 1, 1, 2, Q("1174.77 mm")),
])
pad23 = body30.newObject("PartDesign::Pad", "Pad022")
pad23.Profile = sketch23
pad23.Length = Q("0.925 in")
body31 = doc.addObject("PartDesign::Body", "Body030")

sketch24 = body31.newObject("Sketcher::SketchObject", "Sketch023")
sketch24.AttachmentSupport = (doc.getObject("XY_Plane030"), [""])
sketch24.MapMode = "FlatFace"
sketch24.AttachmentOffset = App.Placement(App.Vector(0, 0, -0.5625 * 25.4), App.Rotation())
add_polygon(sketch24, [(-587, 14), (-587, -14), (587, -14), (587, 14)])
sketch24.addConstraint([
    Sketcher.Constraint("Vertical", 0),
    Sketcher.Constraint("Horizontal", 1),
    Sketcher.Constraint("Vertical", 2),
    Sketcher.Constraint("Horizontal", 3),
    Sketcher.Constraint("Symmetric", 0, 2, 2, 2, -1, 1),
    Sketcher.Constraint("DistanceX", 1, 1, 1, 2, Q("46.25 in")),
    Sketcher.Constraint("DistanceY", 0, 2, 0, 1, Q("1.125 in")),
])
pad24 = body31.newObject("PartDesign::Pad", "Pad023")
pad24.Profile = sketch24
pad24.Length = Q("1.125 in")
doc.recompute()

boolean25 = body31.newObject("PartDesign::Boolean", "Boolean024")
boolean25.Type = "Cut"
boolean25.addObjects([body30])
body32 = doc.addObject("PartDesign::Body", "Body031")
body32.AllowCompound = True
doc.recompute()

body31.Placement = App.Placement(App.Vector(0, 236.537, -660.4), App.Rotation(App.Vector(0, 0, 1), 0))
boolean26 = body32.newObject("PartDesign::Boolean", "Boolean025")
boolean26.Type = "Fuse"
boolean26.addObjects([body31])
doc.recompute()

boolean27 = body32.newObject("PartDesign::Boolean", "Boolean026")
boolean27.Type = "Fuse"
boolean27.addObjects([body23])
doc.recompute()

boolean28 = body32.newObject("PartDesign::Boolean", "Boolean027")
boolean28.Type = "Fuse"
boolean28.addObjects([body26])
doc.recompute()

boolean29 = body32.newObject("PartDesign::Boolean", "Boolean028")
boolean29.Type = "Fuse"
boolean29.addObjects([body29])
body33 = doc.addObject("PartDesign::Body", "Body032")

sketch25 = body33.newObject("Sketcher::SketchObject", "Sketch024")
sketch25.AttachmentSupport = (doc.getObject("XY_Plane032"), [""])
sketch25.MapMode = "FlatFace"
sketch25.AttachmentOffset = App.Placement(App.Vector(0, 0, -0.4625 * 25.4), App.Rotation())
add_polygon(sketch25, [(-610, 12), (-610, -12), (610, -12), (610, 12)])
sketch25.addConstraint([
    Sketcher.Constraint("Vertical", 0),
    Sketcher.Constraint("Horizontal", 1),
    Sketcher.Constraint("Vertical", 2),
    Sketcher.Constraint("Horizontal", 3),
    Sketcher.Constraint("Symmetric", 0, 2, 2, 2, -1, 1),
    Sketcher.Constraint("DistanceY", 0, 2, 0, 1, Q("0.925 in")),
    Sketcher.Constraint("DistanceX", 1, 1, 1, 2, Q("1219.23 mm")),
])
pad25 = body33.newObject("PartDesign::Pad", "Pad024")
pad25.Profile = sketch25
pad25.Length = Q("0.925 in")
body34 = doc.addObject("PartDesign::Body", "Body033")

sketch26 = body34.newObject("Sketcher::SketchObject", "Sketch025")
sketch26.AttachmentSupport = (doc.getObject("XY_Plane033"), [""])
sketch26.MapMode = "FlatFace"
sketch26.AttachmentOffset = App.Placement(App.Vector(0, 0, -0.5625 * 25.4), App.Rotation())
add_polygon(sketch26, [(-610, 14), (-610, -14), (610, -14), (610, 14)])
sketch26.addConstraint([
    Sketcher.Constraint("Vertical", 0),
    Sketcher.Constraint("Horizontal", 1),
    Sketcher.Constraint("Vertical", 2),
    Sketcher.Constraint("Horizontal", 3),
    Sketcher.Constraint("Symmetric", 0, 2, 2, 2, -1, 1),
    Sketcher.Constraint("DistanceY", 0, 2, 0, 1, Q("1.125 in")),
    Sketcher.Constraint("DistanceX", 1, 1, 1, 2, Q("1219.21 mm")),
])
pad26 = body34.newObject("PartDesign::Pad", "Pad025")
pad26.Profile = sketch26
pad26.Length = Q("1.125 in")
doc.recompute()

boolean30 = body34.newObject("PartDesign::Boolean", "Boolean029")
boolean30.Type = "Cut"
boolean30.addObjects([body33])
body35 = doc.addObject("PartDesign::Body", "Body034")
doc.recompute()

body34.Placement = App.Placement(App.Vector(0, -265.112, 0), App.Rotation(App.Vector(0, 0, 1), 0))
boolean31 = body35.newObject("PartDesign::Boolean", "Boolean030")
boolean31.Type = "Fuse"
boolean31.addObjects([body34])
body36 = doc.addObject("PartDesign::Body", "Body035")

sketch27 = body36.newObject("Sketcher::SketchObject", "Sketch026")
sketch27.AttachmentSupport = (doc.getObject("XY_Plane035"), [""])
sketch27.MapMode = "FlatFace"
sketch27.AttachmentOffset = App.Placement(App.Vector(0, 0, -0.4625 * 25.4), App.Rotation())
add_polygon(sketch27, [(-251, 12), (-251, -12), (251, -12), (251, 12)])
sketch27.addConstraint([
    Sketcher.Constraint("Vertical", 0),
    Sketcher.Constraint("Horizontal", 1),
    Sketcher.Constraint("Vertical", 2),
    Sketcher.Constraint("Horizontal", 3),
    Sketcher.Constraint("Symmetric", 0, 2, 2, 2, -1, 1),
    Sketcher.Constraint("DistanceY", 0, 2, 0, 1, Q("0.925 in")),
    Sketcher.Constraint("DistanceX", 1, 1, 1, 2, Q("501.68 mm")),
])
pad27 = body36.newObject("PartDesign::Pad", "Pad026")
pad27.Profile = sketch27
pad27.Length = Q("0.925 in")
body37 = doc.addObject("PartDesign::Body", "Body036")

sketch28 = body37.newObject("Sketcher::SketchObject", "Sketch027")
sketch28.AttachmentSupport = (doc.getObject("XY_Plane036"), [""])
sketch28.MapMode = "FlatFace"
sketch28.AttachmentOffset = App.Placement(App.Vector(0, 0, -0.5625 * 25.4), App.Rotation())
add_polygon(sketch28, [(-251, 14), (-251, -14), (251, -14), (251, 14)])
sketch28.addConstraint([
    Sketcher.Constraint("Vertical", 0),
    Sketcher.Constraint("Horizontal", 1),
    Sketcher.Constraint("Vertical", 2),
    Sketcher.Constraint("Horizontal", 3),
    Sketcher.Constraint("Symmetric", 0, 2, 2, 2, -1, 1),
    Sketcher.Constraint("DistanceY", 0, 2, 0, 1, Q("1.125 in")),
    Sketcher.Constraint("DistanceX", 1, 1, 1, 2, Q("501.66 mm")),
])
pad28 = body37.newObject("PartDesign::Pad", "Pad027")
pad28.Profile = sketch28
pad28.Length = Q("1.125 in")
doc.recompute()

boolean32 = body37.newObject("PartDesign::Boolean", "Boolean031")
boolean32.Type = "Cut"
boolean32.addObjects([body36])
body38 = doc.addObject("PartDesign::Body", "Body037")
doc.recompute()

body37.Placement = App.Placement(App.Vector(595.312, 0, 0), App.Rotation(App.Vector(0, 0, 1), 90))
boolean33 = body38.newObject("PartDesign::Boolean", "Boolean032")
boolean33.Type = "Fuse"
boolean33.addObjects([body37])
body39 = doc.addObject("PartDesign::Body", "Body038")

sketch29 = body39.newObject("Sketcher::SketchObject", "Sketch028")
sketch29.AttachmentSupport = (doc.getObject("XY_Plane038"), [""])
sketch29.MapMode = "FlatFace"
sketch29.AttachmentOffset = App.Placement(App.Vector(0, 0, -0.4625 * 25.4), App.Rotation())
add_polygon(sketch29, [(-251, 12), (-251, -12), (251, -12), (251, 12)])
sketch29.addConstraint([
    Sketcher.Constraint("Vertical", 0),
    Sketcher.Constraint("Horizontal", 1),
    Sketcher.Constraint("Vertical", 2),
    Sketcher.Constraint("Horizontal", 3),
    Sketcher.Constraint("Symmetric", 0, 2, 2, 2, -1, 1),
    Sketcher.Constraint("DistanceY", 0, 2, 0, 1, Q("0.925 in")),
    Sketcher.Constraint("DistanceX", 1, 1, 1, 2, Q("501.68 mm")),
])
pad29 = body39.newObject("PartDesign::Pad", "Pad028")
pad29.Profile = sketch29
pad29.Length = Q("0.925 in")
body40 = doc.addObject("PartDesign::Body", "Body039")

sketch30 = body40.newObject("Sketcher::SketchObject", "Sketch029")
sketch30.AttachmentSupport = (doc.getObject("XY_Plane039"), [""])
sketch30.MapMode = "FlatFace"
sketch30.AttachmentOffset = App.Placement(App.Vector(0, 0, -0.5625 * 25.4), App.Rotation())
add_polygon(sketch30, [(-251, 14), (-251, -14), (251, -14), (251, 14)])
sketch30.addConstraint([
    Sketcher.Constraint("Vertical", 0),
    Sketcher.Constraint("Horizontal", 1),
    Sketcher.Constraint("Vertical", 2),
    Sketcher.Constraint("Horizontal", 3),
    Sketcher.Constraint("Symmetric", 0, 2, 2, 2, -1, 1),
    Sketcher.Constraint("DistanceY", 0, 2, 0, 1, Q("1.125 in")),
    Sketcher.Constraint("DistanceX", 1, 1, 1, 2, Q("501.66 mm")),
])
pad30 = body40.newObject("PartDesign::Pad", "Pad029")
pad30.Profile = sketch30
pad30.Length = Q("1.125 in")
doc.recompute()

boolean34 = body40.newObject("PartDesign::Boolean", "Boolean033")
boolean34.Type = "Cut"
boolean34.addObjects([body39])
body41 = doc.addObject("PartDesign::Body", "Body040")
doc.recompute()

body40.Placement = App.Placement(App.Vector(-595.312, 0, 0), App.Rotation(App.Vector(0, 0, 1), 90))
boolean35 = body41.newObject("PartDesign::Boolean", "Boolean034")
boolean35.Type = "Fuse"
boolean35.addObjects([body40])
body42 = doc.addObject("PartDesign::Body", "Body041")

sketch31 = body42.newObject("Sketcher::SketchObject", "Sketch030")
sketch31.AttachmentSupport = (doc.getObject("XY_Plane041"), [""])
sketch31.MapMode = "FlatFace"
sketch31.AttachmentOffset = App.Placement(App.Vector(0, 0, -0.4625 * 25.4), App.Rotation())
add_polygon(sketch31, [(-610, 12), (-610, -12), (610, -12), (610, 12)])
sketch31.addConstraint([
    Sketcher.Constraint("Vertical", 0),
    Sketcher.Constraint("Horizontal", 1),
    Sketcher.Constraint("Vertical", 2),
    Sketcher.Constraint("Horizontal", 3),
    Sketcher.Constraint("Symmetric", 0, 2, 2, 2, -1, 1),
    Sketcher.Constraint("DistanceY", 0, 2, 0, 1, Q("0.925 in")),
    Sketcher.Constraint("DistanceX", 1, 1, 1, 2, Q("1219.23 mm")),
])
pad31 = body42.newObject("PartDesign::Pad", "Pad030")
pad31.Profile = sketch31
pad31.Length = Q("0.925 in")
body43 = doc.addObject("PartDesign::Body", "Body042")

sketch32 = body43.newObject("Sketcher::SketchObject", "Sketch031")
sketch32.AttachmentSupport = (doc.getObject("XY_Plane042"), [""])
sketch32.MapMode = "FlatFace"
sketch32.AttachmentOffset = App.Placement(App.Vector(0, 0, -0.5625 * 25.4), App.Rotation())
add_polygon(sketch32, [(-610, 14), (-610, -14), (610, -14), (610, 14)])
sketch32.addConstraint([
    Sketcher.Constraint("Vertical", 0),
    Sketcher.Constraint("Horizontal", 1),
    Sketcher.Constraint("Vertical", 2),
    Sketcher.Constraint("Horizontal", 3),
    Sketcher.Constraint("Symmetric", 0, 2, 2, 2, -1, 1),
    Sketcher.Constraint("DistanceY", 0, 2, 0, 1, Q("1.125 in")),
    Sketcher.Constraint("DistanceX", 1, 1, 1, 2, Q("1219.21 mm")),
])
pad32 = body43.newObject("PartDesign::Pad", "Pad031")
pad32.Profile = sketch32
pad32.Length = Q("1.125 in")
doc.recompute()

boolean36 = body43.newObject("PartDesign::Boolean", "Boolean035")
boolean36.Type = "Cut"
boolean36.addObjects([body42])
body44 = doc.addObject("PartDesign::Body", "Body043")
body44.AllowCompound = True
doc.recompute()

body43.Placement = App.Placement(App.Vector(0, 265.112, 0), App.Rotation(App.Vector(0, 0, 1), 0))
boolean37 = body44.newObject("PartDesign::Boolean", "Boolean036")
boolean37.Type = "Fuse"
boolean37.addObjects([body43])
doc.recompute()

boolean38 = body44.newObject("PartDesign::Boolean", "Boolean037")
boolean38.Type = "Fuse"
boolean38.addObjects([body35])
doc.recompute()

boolean39 = body44.newObject("PartDesign::Boolean", "Boolean038")
boolean39.Type = "Fuse"
boolean39.addObjects([body38])
doc.recompute()

boolean40 = body44.newObject("PartDesign::Boolean", "Boolean039")
boolean40.Type = "Fuse"
boolean40.addObjects([body41])
doc.recompute()

boolean41 = body44.newObject("PartDesign::Boolean", "Boolean040")
boolean41.Type = "Fuse"
boolean41.addObjects([body8])
doc.recompute()

boolean42 = body44.newObject("PartDesign::Boolean", "Boolean041")
boolean42.Type = "Fuse"
boolean42.addObjects([body20])
doc.recompute()

boolean43 = body44.newObject("PartDesign::Boolean", "Boolean042")
boolean43.Type = "Fuse"
boolean43.addObjects([body32])

doc.recompute()
